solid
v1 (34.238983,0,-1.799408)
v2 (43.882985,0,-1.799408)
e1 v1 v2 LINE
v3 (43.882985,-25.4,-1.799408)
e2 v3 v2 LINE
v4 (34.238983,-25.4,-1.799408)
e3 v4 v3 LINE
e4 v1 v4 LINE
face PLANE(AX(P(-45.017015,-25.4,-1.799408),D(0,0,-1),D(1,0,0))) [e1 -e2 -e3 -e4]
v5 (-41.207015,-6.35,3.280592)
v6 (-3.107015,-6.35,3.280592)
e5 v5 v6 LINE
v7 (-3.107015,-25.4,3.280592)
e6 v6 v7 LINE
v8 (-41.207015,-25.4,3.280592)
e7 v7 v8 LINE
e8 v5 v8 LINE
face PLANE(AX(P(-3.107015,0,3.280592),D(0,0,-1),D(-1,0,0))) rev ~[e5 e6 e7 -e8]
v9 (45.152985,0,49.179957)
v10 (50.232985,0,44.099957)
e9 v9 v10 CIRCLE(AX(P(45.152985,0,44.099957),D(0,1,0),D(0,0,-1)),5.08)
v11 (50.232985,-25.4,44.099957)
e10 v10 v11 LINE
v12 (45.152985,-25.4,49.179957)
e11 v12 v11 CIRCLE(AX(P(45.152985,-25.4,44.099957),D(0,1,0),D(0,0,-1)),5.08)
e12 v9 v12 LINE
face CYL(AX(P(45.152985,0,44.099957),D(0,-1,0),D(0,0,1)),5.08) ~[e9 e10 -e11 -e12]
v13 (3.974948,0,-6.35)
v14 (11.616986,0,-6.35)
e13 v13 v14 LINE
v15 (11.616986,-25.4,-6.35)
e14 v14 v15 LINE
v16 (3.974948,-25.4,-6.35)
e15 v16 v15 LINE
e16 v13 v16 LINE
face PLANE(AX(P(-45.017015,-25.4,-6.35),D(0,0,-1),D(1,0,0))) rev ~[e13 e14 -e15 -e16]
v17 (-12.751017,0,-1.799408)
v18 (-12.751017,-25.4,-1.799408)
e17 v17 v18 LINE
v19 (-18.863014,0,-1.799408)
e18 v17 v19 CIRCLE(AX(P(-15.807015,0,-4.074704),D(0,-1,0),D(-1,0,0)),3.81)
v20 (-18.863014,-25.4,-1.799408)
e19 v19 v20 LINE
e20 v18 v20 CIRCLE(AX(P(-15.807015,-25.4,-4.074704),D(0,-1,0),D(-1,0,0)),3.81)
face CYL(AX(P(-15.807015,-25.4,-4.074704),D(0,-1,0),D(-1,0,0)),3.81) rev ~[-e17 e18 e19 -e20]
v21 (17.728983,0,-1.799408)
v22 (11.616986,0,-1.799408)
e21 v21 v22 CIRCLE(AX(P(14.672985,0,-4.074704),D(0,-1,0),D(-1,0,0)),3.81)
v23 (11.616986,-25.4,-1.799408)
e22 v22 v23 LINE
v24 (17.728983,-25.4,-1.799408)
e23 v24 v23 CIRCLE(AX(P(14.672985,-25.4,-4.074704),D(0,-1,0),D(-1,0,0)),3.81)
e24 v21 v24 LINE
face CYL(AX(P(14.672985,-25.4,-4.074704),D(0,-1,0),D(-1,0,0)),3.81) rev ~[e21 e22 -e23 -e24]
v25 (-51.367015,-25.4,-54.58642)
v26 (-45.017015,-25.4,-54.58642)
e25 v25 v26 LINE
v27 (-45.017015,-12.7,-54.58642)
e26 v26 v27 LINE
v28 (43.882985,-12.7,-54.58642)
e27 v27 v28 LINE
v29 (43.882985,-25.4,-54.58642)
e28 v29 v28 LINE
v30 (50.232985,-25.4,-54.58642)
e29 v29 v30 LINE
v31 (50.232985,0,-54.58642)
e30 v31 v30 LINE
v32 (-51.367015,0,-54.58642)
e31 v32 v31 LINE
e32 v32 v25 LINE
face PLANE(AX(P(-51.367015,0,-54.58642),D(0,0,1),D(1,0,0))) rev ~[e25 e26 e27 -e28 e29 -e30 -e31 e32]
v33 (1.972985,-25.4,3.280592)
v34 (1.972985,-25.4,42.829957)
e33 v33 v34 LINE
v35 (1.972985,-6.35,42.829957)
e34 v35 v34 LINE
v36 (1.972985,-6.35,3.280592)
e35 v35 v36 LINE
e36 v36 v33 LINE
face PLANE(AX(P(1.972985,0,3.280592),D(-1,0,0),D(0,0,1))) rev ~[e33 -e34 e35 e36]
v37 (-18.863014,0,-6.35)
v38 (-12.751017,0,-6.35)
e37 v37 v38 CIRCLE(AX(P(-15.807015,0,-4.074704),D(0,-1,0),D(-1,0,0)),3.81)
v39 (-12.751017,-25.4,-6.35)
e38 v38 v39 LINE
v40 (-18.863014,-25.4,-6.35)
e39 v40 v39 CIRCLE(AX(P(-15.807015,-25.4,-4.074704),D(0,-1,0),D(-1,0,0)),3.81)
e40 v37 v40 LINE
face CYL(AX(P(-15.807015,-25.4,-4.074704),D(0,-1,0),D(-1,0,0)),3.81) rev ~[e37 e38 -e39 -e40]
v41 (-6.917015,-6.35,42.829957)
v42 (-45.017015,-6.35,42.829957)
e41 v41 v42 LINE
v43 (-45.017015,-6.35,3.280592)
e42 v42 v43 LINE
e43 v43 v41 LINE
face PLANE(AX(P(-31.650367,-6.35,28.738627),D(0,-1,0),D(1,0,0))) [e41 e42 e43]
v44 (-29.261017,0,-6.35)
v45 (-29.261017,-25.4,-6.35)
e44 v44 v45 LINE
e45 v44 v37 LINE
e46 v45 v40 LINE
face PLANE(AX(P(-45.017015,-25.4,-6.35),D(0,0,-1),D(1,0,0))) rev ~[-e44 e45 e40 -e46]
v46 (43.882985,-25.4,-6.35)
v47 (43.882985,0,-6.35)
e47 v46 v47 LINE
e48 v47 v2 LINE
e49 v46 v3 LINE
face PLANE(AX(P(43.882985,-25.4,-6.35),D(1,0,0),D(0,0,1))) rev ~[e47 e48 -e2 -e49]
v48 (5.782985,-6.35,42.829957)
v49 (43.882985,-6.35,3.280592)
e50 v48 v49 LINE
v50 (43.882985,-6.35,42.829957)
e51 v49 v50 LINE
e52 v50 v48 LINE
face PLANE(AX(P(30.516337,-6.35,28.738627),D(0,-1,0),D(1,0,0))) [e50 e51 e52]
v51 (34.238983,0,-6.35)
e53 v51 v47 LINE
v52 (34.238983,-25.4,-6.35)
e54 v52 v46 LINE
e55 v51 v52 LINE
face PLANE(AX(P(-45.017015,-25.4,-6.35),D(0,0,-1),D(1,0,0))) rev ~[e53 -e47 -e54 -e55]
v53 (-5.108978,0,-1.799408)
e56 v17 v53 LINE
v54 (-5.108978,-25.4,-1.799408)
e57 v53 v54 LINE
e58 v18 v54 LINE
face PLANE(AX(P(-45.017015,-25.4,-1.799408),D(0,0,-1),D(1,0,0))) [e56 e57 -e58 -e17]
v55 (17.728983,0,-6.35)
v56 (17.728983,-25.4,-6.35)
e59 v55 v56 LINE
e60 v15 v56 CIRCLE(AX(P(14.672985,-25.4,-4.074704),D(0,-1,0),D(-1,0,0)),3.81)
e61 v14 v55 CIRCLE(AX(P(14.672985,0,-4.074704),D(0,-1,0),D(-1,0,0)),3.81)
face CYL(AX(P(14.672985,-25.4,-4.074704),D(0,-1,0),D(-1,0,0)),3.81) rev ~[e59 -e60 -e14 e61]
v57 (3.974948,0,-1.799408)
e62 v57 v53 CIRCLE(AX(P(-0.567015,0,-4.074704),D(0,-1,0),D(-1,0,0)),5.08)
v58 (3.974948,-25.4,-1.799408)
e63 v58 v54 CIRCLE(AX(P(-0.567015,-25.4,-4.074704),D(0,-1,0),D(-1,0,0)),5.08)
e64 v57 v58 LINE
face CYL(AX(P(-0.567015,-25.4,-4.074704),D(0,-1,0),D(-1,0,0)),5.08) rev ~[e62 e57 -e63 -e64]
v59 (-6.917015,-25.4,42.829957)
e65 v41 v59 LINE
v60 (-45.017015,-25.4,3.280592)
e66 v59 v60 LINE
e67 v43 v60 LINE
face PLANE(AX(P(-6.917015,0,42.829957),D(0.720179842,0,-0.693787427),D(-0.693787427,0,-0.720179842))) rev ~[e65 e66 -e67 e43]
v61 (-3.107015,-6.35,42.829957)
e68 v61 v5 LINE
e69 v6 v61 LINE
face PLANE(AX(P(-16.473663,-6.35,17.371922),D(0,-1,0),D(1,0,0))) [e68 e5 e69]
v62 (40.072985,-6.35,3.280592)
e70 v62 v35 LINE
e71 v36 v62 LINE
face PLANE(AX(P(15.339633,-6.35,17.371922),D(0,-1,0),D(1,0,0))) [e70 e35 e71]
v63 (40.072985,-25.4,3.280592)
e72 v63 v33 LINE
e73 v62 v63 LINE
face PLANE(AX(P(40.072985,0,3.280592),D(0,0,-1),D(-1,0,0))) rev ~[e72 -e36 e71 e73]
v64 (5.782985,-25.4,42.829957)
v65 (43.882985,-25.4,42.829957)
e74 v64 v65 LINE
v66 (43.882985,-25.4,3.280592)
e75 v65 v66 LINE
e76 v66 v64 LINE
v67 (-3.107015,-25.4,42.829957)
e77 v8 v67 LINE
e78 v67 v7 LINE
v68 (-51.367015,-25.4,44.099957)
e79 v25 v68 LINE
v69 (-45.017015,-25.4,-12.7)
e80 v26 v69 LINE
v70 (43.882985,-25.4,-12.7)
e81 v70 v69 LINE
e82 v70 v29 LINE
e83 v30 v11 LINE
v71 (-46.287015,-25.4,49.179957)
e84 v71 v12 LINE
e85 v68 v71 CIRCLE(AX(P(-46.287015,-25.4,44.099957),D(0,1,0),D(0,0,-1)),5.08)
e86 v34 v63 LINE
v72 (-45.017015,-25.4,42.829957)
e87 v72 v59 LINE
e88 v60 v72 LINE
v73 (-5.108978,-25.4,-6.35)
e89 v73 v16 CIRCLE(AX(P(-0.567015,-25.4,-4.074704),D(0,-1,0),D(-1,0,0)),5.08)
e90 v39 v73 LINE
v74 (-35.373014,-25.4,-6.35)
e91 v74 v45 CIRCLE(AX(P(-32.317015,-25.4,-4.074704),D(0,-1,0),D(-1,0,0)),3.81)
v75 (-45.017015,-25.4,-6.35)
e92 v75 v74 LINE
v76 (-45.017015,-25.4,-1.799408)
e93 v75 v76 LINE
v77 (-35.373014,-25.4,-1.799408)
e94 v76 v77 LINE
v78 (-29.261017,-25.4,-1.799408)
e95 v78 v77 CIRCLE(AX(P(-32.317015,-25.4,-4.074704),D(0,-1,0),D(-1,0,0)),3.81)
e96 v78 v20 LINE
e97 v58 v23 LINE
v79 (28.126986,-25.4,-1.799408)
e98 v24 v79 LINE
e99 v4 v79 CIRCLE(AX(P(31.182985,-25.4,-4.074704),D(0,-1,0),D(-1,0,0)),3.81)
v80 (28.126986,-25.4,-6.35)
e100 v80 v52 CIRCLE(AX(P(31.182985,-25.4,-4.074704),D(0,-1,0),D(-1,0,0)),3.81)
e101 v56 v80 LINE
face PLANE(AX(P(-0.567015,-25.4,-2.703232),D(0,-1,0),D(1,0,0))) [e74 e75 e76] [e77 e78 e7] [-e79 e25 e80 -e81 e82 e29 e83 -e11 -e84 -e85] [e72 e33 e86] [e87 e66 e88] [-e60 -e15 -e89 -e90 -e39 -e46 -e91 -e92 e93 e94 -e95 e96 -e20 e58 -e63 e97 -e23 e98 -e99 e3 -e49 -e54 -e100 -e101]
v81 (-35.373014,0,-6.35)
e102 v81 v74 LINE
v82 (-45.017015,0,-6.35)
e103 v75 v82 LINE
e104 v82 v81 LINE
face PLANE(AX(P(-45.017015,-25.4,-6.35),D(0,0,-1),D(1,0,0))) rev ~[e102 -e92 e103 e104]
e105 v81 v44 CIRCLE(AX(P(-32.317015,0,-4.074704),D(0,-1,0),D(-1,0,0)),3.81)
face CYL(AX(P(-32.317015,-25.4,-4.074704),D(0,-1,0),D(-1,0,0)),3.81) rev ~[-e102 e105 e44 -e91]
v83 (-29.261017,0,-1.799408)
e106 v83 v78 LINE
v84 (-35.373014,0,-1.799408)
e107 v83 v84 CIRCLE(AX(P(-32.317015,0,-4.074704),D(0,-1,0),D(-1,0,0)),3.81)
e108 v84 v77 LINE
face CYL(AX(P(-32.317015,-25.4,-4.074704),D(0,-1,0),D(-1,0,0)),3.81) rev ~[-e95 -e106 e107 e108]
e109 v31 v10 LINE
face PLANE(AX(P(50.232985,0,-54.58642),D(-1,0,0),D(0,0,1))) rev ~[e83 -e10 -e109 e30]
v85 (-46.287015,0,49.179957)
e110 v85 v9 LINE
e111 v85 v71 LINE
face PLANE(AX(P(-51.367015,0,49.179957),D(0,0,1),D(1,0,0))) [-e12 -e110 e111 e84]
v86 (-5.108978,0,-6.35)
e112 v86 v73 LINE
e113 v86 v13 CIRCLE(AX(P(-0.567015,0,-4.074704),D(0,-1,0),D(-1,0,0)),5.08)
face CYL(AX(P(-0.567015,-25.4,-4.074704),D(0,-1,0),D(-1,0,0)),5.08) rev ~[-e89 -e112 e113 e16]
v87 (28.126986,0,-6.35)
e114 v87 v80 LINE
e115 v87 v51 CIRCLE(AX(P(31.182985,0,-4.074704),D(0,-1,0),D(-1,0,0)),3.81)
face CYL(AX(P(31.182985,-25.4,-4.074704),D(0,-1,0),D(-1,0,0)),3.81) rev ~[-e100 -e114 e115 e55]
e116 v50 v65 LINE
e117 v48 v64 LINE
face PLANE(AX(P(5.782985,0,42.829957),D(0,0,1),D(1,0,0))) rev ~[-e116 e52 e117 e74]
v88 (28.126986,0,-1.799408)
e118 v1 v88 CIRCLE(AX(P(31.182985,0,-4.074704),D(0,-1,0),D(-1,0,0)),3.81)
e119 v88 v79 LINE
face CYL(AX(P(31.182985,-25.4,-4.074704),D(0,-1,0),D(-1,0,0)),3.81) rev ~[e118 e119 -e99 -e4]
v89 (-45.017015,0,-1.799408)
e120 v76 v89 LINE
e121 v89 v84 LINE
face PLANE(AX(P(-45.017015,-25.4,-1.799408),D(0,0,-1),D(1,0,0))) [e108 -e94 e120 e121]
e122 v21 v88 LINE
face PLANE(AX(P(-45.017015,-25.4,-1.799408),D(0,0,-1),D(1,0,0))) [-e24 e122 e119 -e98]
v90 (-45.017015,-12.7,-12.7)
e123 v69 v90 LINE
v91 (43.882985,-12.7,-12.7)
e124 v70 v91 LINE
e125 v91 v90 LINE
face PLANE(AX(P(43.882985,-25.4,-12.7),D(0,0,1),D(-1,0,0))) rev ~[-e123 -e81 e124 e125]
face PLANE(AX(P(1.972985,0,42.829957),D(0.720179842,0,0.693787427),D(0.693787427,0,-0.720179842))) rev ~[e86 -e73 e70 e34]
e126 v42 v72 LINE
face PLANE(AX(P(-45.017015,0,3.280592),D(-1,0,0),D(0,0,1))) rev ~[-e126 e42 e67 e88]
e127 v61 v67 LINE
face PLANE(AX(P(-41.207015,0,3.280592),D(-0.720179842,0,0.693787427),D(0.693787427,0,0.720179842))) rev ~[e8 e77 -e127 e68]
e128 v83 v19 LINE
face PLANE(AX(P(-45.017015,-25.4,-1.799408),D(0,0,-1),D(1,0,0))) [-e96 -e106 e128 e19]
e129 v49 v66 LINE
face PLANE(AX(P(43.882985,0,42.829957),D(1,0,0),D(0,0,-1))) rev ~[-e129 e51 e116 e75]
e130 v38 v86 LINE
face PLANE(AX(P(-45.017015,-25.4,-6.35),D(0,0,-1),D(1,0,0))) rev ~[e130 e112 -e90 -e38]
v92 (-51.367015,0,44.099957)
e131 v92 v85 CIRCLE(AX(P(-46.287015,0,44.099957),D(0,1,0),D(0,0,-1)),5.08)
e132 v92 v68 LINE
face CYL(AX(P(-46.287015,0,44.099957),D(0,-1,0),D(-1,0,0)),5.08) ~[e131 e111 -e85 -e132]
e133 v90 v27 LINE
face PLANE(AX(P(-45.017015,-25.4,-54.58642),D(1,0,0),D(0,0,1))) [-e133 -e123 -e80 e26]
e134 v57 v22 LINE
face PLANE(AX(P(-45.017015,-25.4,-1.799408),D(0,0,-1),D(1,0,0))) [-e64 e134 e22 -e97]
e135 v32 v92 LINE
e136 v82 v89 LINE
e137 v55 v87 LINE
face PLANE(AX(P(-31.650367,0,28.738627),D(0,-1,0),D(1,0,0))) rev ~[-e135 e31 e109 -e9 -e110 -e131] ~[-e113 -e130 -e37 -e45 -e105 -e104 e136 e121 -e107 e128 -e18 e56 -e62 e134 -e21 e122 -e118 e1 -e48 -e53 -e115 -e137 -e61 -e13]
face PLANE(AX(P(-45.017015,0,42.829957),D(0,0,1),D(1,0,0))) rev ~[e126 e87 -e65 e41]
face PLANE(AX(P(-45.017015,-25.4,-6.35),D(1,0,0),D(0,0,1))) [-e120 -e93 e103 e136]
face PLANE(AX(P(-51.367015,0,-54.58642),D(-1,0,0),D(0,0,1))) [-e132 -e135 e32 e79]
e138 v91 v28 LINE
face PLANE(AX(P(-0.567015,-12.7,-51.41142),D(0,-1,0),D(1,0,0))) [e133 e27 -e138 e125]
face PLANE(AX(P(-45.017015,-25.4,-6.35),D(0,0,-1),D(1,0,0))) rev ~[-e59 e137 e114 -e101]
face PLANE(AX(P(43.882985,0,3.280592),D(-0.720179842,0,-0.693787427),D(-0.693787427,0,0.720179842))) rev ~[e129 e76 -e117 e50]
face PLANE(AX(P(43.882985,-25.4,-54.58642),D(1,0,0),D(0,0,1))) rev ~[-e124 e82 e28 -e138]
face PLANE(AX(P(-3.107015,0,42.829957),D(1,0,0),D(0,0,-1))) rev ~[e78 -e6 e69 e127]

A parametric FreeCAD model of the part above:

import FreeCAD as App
import Part
import Sketcher
Q = App.Units.Quantity


def edges_at(feature, points):
    """Names of the edges that pass closest to the given points."""
    edges = feature.Shape.Edges
    near = lambda p: min(range(len(edges)), key=lambda i: edges[i].distToShape(Part.Vertex(*p))[0])
    return sorted({f"Edge{near(p) + 1}" for p in points})


def add_polygon(sketch, points):
    """Adds a closed chain of lines whose ends are joined by coincident constraints."""
    first, n = sketch.GeometryCount, len(points)
    for a, b in zip(points, points[1:] + points[:1]):
        sketch.addGeometry(Part.LineSegment(App.Vector(*a, 0), App.Vector(*b, 0)), False)
    for i in range(n):
        sketch.addConstraint(Sketcher.Constraint("Coincident", first + i, 2, first + (i + 1) % n, 1))

doc = App.newDocument("Part")
params = doc.addObject("Spreadsheet::Sheet", "Params")
for row, (alias, value) in enumerate([
    ("sketch1_width", "4 in"),
    ("sketch1_width2", "1.5 in"),
    ("pad1_length", "1 in"),
    ("sketch2_width", "1.5 in"),
    ("pad2_length", "0.25 in"),
    ("fillet_radius", "0.2 in"),
    ("sketch3_width", "3.5 in"),
    ("pocket1_length", "1 in"),
    ("sketch4_width", "3.5 in"),
    ("pocket2_length", "0.5 in"),
    ("sketch5_width", "3.5 in"),
    ("sketch5_height", "0.25 in"),
    ("pocket3_length", "0.5 in"),
    ("sketch6_diameter", "0.3 in"),
    ("sketch6_diameter2", "0.4 in"),
    ("pocket4_length", "1 in"),
], start=1):
    params.set(f"A{row}", alias)
    params.set(f"B{row}", "=" + value)
    params.setAlias(f"B{row}", alias)

body = doc.addObject("PartDesign::Body", "Body")

# Sketch on XZ plane
sketch1 = doc.addObject("Sketcher::SketchObject", "Sketch")
body.addObject(sketch1)
sketch1.AttachmentSupport = (doc.XZ_Plane, [""])
sketch1.MapMode = "FlatFace"
add_polygon(sketch1, [(-51, 49), (-51, -55), (50, -55), (50, 49)])  # lines 0-3
add_polygon(sketch1, [(2, 3), (2, 43), (40, 3)])  # lines 4-6
add_polygon(sketch1, [(-7, 43), (-45, 3), (-45, 43)])  # lines 7-9
add_polygon(sketch1, [(-3, 43), (-3, 3), (-41, 3)])  # lines 10-12
add_polygon(sketch1, [(44, 3), (6, 43), (44, 43)])  # lines 13-15
sketch1.addConstraint([
    Sketcher.Constraint("Vertical", 0),
    Sketcher.Constraint("Horizontal", 1),
    Sketcher.Constraint("Vertical", 2),
    Sketcher.Constraint("Horizontal", 3),
    Sketcher.Constraint("Vertical", 4),
    Sketcher.Constraint("Horizontal", 6),
    Sketcher.Constraint("Vertical", 8),
    Sketcher.Constraint("Horizontal", 9),
    Sketcher.Constraint("Vertical", 10),
    Sketcher.Constraint("Horizontal", 11),
    Sketcher.Constraint("Horizontal", 14),
    Sketcher.Constraint("Vertical", 15),
    Sketcher.Constraint("Parallel", 7, 12),
    Sketcher.Constraint("Parallel", 5, 13),
    Sketcher.Constraint("Horizontal", 6, 2, 7, 2),
    Sketcher.Constraint("Horizontal", 4, 2, 8, 2),
    Sketcher.Constraint("Horizontal", 7, 2, 10, 2),
    Sketcher.Constraint("Horizontal", 9, 2, 12, 2),
    Sketcher.Constraint("Horizontal", 12, 2, 13, 2),
    Sketcher.Constraint("Horizontal", 11, 2, 15, 2),
    Sketcher.Constraint("Equal", 6, 9),
    Sketcher.Constraint("DistanceX", 1, 1, 1, 2, Q("4 in")),
    Sketcher.Constraint("DistanceX", 6, 2, 6, 1, Q("1.5 in")),
    Sketcher.Constraint("DistanceX", 4, 2, 2, 2, Q("1.9 in")),
    Sketcher.Constraint("DistanceX", 10, 2, 6, 2, Q("0.2 in")),
    Sketcher.Constraint("DistanceX", 9, 2, 13, 2, Q("0.5 in")),
    Sketcher.Constraint("DistanceY", 4, 2, 2, 2, Q("0.25 in")),
    Sketcher.Constraint("DistanceX", 3, 2, 7, 2, Q("0.25 in")),
    Sketcher.Constraint("DistanceY", 0, 2, 0, 1, 103.766377),
    Sketcher.Constraint("DistanceY", 4, 1, 4, 2, 39.549365),
    Sketcher.Constraint("DistanceY", 0, 2, -1, 1, 54.58642),
    Sketcher.Constraint("DistanceX", 0, 2, -1, 1, 51.367015),
])
sketch1.setExpression("Constraints[37]", "Params.sketch1_width")
sketch1.setExpression("Constraints[38]", "Params.sketch1_width2")
pad1 = doc.addObject("PartDesign::Pad", "Pad")
body.addObject(pad1)
pad1.Profile = sketch1
pad1.setExpression("Length", "Params.pad1_length")

# Sketch on XZ plane
sketch2 = doc.addObject("Sketcher::SketchObject", "Sketch001")
body.addObject(sketch2)
sketch2.AttachmentSupport = (doc.XZ_Plane, [""])
sketch2.MapMode = "FlatFace"
add_polygon(sketch2, [(-7, 43), (-45, 43), (-45, 3)])  # lines 0-2
add_polygon(sketch2, [(-3, 43), (-41, 3), (-3, 3)])  # lines 3-5
add_polygon(sketch2, [(2, 3), (40, 3), (2, 43)])  # lines 6-8
add_polygon(sketch2, [(44, 3), (44, 43), (6, 43)])  # lines 9-11
sketch2.addConstraint([
    Sketcher.Constraint("Horizontal", 0),
    Sketcher.Constraint("Vertical", 1),
    Sketcher.Constraint("Horizontal", 4),
    Sketcher.Constraint("Vertical", 5),
    Sketcher.Constraint("Horizontal", 6),
    Sketcher.Constraint("Vertical", 8),
    Sketcher.Constraint("Vertical", 9),
    Sketcher.Constraint("Horizontal", 10),
    Sketcher.Constraint("Parallel", 2, 3),
    Sketcher.Constraint("Parallel", 7, 11),
    Sketcher.Constraint("Horizontal", 1, 2, 3, 2),
    Sketcher.Constraint("Horizontal", 2, 2, 5, 2),
    Sketcher.Constraint("Horizontal", 4, 2, 6, 2),
    Sketcher.Constraint("Horizontal", 5, 2, 7, 2),
    Sketcher.Constraint("Horizontal", 7, 2, 9, 2),
    Sketcher.Constraint("Horizontal", 8, 2, 11, 2),
    Sketcher.Constraint("Equal", 4, 6),
    Sketcher.Constraint("DistanceX", 0, 2, 0, 1, Q("1.5 in")),
    Sketcher.Constraint("DistanceX", 2, 2, 9, 2, Q("2 in")),
    Sketcher.Constraint("DistanceX", 4, 2, 6, 2, Q("1.7 in")),
    Sketcher.Constraint("DistanceX", 1, 2, 3, 2, Q("0.15 in")),
    Sketcher.Constraint("DistanceY", 1, 2, 1, 1, 39.549365),
    Sketcher.Constraint("DistanceX", 0, 2, -1, 1, 45.017015),
    Sketcher.Constraint("DistanceY", -1, 1, 0, 2, 42.829957),
])
sketch2.setExpression("Constraints[29]", "Params.sketch2_width")
pad2 = doc.addObject("PartDesign::Pad", "Pad001")
body.addObject(pad2)
pad2.Profile = sketch2
pad2.setExpression("Length", "Params.pad2_length")
doc.recompute()

fillet = doc.addObject("PartDesign::Fillet", "Fillet")
body.addObject(fillet)
fillet.Base = (pad2, edges_at(pad2, [(-51.367, -12.7, 49.18), (50.233, -12.7, 49.18)]))
fillet.setExpression("Radius", "Params.fillet_radius")

# Sketch on XZ plane
sketch3 = doc.addObject("Sketcher::SketchObject", "Sketch002")
body.addObject(sketch3)
sketch3.AttachmentSupport = (doc.XZ_Plane, [""])
sketch3.MapMode = "FlatFace"
sketch3.AttachmentOffset = App.Placement(App.Vector(0, 0, 1 * 25.4), App.Rotation())
add_polygon(sketch3, [(-45, -1.8), (-45, -6.3), (43.9, -6.3), (43.9, -1.8)])  # lines 0-3
sketch3.addConstraint([
    Sketcher.Constraint("Vertical", 0),
    Sketcher.Constraint("Horizontal", 1),
    Sketcher.Constraint("Vertical", 2),
    Sketcher.Constraint("Horizontal", 3),
    Sketcher.Constraint("DistanceX", 1, 1, 1, 2, Q("3.5 in")),
    Sketcher.Constraint("DistanceY", 0, 2, -1, 1, Q("0.25 in")),
    Sketcher.Constraint("DistanceY", 0, 2, 0, 1, 4.550592),
    Sketcher.Constraint("DistanceX", 0, 2, -1, 1, 45.017015),
])
sketch3.setExpression("Constraints[8]", "Params.sketch3_width")
pocket1 = doc.addObject("PartDesign::Pocket", "Pocket")
body.addObject(pocket1)
pocket1.Profile = sketch3
pocket1.setExpression("Length", "Params.pocket1_length")

# Sketch on XZ plane
sketch4 = doc.addObject("Sketcher::SketchObject", "Sketch003")
body.addObject(sketch4)
sketch4.AttachmentSupport = (doc.XZ_Plane, [""])
sketch4.MapMode = "FlatFace"
sketch4.AttachmentOffset = App.Placement(App.Vector(0, 0, 1 * 25.4), App.Rotation())
add_polygon(sketch4, [(-45, -13), (-45, -48), (44, -48), (44, -13)])  # lines 0-3
sketch4.addConstraint([
    Sketcher.Constraint("Vertical", 0),
    Sketcher.Constraint("Horizontal", 1),
    Sketcher.Constraint("Vertical", 2),
    Sketcher.Constraint("Horizontal", 3),
    Sketcher.Constraint("DistanceX", 1, 1, 1, 2, Q("3.5 in")),
    Sketcher.Constraint("DistanceY", 2, 2, -1, 1, Q("0.5 in")),
    Sketcher.Constraint("DistanceY", 0, 2, 0, 1, 35.53642),
    Sketcher.Constraint("DistanceX", 0, 2, -1, 1, 45.017015),
])
sketch4.setExpression("Constraints[8]", "Params.sketch4_width")
pocket2 = doc.addObject("PartDesign::Pocket", "Pocket001")
body.addObject(pocket2)
pocket2.Profile = sketch4
pocket2.setExpression("Length", "Params.pocket2_length")

# Sketch on XZ plane
sketch5 = doc.addObject("Sketcher::SketchObject", "Sketch004")
body.addObject(sketch5)
sketch5.AttachmentSupport = (doc.XZ_Plane, [""])
sketch5.MapMode = "FlatFace"
sketch5.AttachmentOffset = App.Placement(App.Vector(0, 0, 1 * 25.4), App.Rotation())
add_polygon(sketch5, [(-45, -48), (-45, -55), (44, -55), (44, -48)])  # lines 0-3
sketch5.addConstraint([
    Sketcher.Constraint("Vertical", 0),
    Sketcher.Constraint("Horizontal", 1),
    Sketcher.Constraint("Vertical", 2),
    Sketcher.Constraint("Horizontal", 3),
    Sketcher.Constraint("DistanceX", 1, 1, 1, 2, Q("3.5 in")),
    Sketcher.Constraint("DistanceY", 0, 2, 0, 1, Q("0.25 in")),
    Sketcher.Constraint("DistanceY", 0, 2, -1, 1, 54.58642),
    Sketcher.Constraint("DistanceX", 0, 2, -1, 1, 45.017015),
])
sketch5.setExpression("Constraints[8]", "Params.sketch5_width")
sketch5.setExpression("Constraints[9]", "Params.sketch5_height")
pocket3 = doc.addObject("PartDesign::Pocket", "Pocket002")
body.addObject(pocket3)
pocket3.Profile = sketch5
pocket3.setExpression("Length", "Params.pocket3_length")

# Sketch on XZ plane
sketch6 = doc.addObject("Sketcher::SketchObject", "Sketch005")
body.addObject(sketch6)
sketch6.AttachmentSupport = (doc.XZ_Plane, [""])
sketch6.MapMode = "FlatFace"
sketch6.AttachmentOffset = App.Placement(App.Vector(0, 0, 1 * 25.4), App.Rotation())
sketch6.addGeometry([
    Part.Circle(App.Vector(-32.3, -4.1, 0), App.Vector(0, 0, 1), 3.8),  # 0
    Part.Circle(App.Vector(31.2, -4.1, 0), App.Vector(0, 0, 1), 3.8),  # 1
    Part.Circle(App.Vector(14.7, -4.1, 0), App.Vector(0, 0, 1), 3.8),  # 2
    Part.Circle(App.Vector(-0.6, -4.1, 0), App.Vector(0, 0, 1), 5.1),  # 3
    Part.Circle(App.Vector(-15.8, -4.1, 0), App.Vector(0, 0, 1), 3.8),  # 4
], False)
sketch6.addConstraint([
    Sketcher.Constraint("Equal", 0, 1),
    Sketcher.Constraint("Equal", 1, 2),
    Sketcher.Constraint("Equal", 2, 4),
    Sketcher.Constraint("Horizontal", 0, 3, 1, 3),
    Sketcher.Constraint("Horizontal", 1, 3, 2, 3),
    Sketcher.Constraint("Horizontal", 2, 3, 3, 3),
    Sketcher.Constraint("Horizontal", 3, 3, 4, 3),
    Sketcher.Constraint("Diameter", 0, Q("0.3 in")),
    Sketcher.Constraint("Diameter", 3, Q("0.4 in")),
    Sketcher.Constraint("DistanceX", 0, 3, 1, 3, Q("2.5 in")),
    Sketcher.Constraint("DistanceX", 3, 3, 2, 3, Q("0.6 in")),
    Sketcher.Constraint("DistanceX", 4, 3, 3, 3, Q("0.6 in")),
    Sketcher.Constraint("DistanceX", 2, 3, 1, 3, Q("0.65 in")),
    Sketcher.Constraint("DistanceX", 0, 3, -1, 1, 32.317015),
    Sketcher.Constraint("DistanceY", 0, 3, -1, 1, 4.074704),
])
sketch6.setExpression("Constraints[7]", "Params.sketch6_diameter")
sketch6.setExpression("Constraints[8]", "Params.sketch6_diameter2")
pocket4 = doc.addObject("PartDesign::Pocket", "Pocket003")
body.addObject(pocket4)
pocket4.Profile = sketch6
pocket4.setExpression("Length", "Params.pocket4_length")

doc.recompute()
